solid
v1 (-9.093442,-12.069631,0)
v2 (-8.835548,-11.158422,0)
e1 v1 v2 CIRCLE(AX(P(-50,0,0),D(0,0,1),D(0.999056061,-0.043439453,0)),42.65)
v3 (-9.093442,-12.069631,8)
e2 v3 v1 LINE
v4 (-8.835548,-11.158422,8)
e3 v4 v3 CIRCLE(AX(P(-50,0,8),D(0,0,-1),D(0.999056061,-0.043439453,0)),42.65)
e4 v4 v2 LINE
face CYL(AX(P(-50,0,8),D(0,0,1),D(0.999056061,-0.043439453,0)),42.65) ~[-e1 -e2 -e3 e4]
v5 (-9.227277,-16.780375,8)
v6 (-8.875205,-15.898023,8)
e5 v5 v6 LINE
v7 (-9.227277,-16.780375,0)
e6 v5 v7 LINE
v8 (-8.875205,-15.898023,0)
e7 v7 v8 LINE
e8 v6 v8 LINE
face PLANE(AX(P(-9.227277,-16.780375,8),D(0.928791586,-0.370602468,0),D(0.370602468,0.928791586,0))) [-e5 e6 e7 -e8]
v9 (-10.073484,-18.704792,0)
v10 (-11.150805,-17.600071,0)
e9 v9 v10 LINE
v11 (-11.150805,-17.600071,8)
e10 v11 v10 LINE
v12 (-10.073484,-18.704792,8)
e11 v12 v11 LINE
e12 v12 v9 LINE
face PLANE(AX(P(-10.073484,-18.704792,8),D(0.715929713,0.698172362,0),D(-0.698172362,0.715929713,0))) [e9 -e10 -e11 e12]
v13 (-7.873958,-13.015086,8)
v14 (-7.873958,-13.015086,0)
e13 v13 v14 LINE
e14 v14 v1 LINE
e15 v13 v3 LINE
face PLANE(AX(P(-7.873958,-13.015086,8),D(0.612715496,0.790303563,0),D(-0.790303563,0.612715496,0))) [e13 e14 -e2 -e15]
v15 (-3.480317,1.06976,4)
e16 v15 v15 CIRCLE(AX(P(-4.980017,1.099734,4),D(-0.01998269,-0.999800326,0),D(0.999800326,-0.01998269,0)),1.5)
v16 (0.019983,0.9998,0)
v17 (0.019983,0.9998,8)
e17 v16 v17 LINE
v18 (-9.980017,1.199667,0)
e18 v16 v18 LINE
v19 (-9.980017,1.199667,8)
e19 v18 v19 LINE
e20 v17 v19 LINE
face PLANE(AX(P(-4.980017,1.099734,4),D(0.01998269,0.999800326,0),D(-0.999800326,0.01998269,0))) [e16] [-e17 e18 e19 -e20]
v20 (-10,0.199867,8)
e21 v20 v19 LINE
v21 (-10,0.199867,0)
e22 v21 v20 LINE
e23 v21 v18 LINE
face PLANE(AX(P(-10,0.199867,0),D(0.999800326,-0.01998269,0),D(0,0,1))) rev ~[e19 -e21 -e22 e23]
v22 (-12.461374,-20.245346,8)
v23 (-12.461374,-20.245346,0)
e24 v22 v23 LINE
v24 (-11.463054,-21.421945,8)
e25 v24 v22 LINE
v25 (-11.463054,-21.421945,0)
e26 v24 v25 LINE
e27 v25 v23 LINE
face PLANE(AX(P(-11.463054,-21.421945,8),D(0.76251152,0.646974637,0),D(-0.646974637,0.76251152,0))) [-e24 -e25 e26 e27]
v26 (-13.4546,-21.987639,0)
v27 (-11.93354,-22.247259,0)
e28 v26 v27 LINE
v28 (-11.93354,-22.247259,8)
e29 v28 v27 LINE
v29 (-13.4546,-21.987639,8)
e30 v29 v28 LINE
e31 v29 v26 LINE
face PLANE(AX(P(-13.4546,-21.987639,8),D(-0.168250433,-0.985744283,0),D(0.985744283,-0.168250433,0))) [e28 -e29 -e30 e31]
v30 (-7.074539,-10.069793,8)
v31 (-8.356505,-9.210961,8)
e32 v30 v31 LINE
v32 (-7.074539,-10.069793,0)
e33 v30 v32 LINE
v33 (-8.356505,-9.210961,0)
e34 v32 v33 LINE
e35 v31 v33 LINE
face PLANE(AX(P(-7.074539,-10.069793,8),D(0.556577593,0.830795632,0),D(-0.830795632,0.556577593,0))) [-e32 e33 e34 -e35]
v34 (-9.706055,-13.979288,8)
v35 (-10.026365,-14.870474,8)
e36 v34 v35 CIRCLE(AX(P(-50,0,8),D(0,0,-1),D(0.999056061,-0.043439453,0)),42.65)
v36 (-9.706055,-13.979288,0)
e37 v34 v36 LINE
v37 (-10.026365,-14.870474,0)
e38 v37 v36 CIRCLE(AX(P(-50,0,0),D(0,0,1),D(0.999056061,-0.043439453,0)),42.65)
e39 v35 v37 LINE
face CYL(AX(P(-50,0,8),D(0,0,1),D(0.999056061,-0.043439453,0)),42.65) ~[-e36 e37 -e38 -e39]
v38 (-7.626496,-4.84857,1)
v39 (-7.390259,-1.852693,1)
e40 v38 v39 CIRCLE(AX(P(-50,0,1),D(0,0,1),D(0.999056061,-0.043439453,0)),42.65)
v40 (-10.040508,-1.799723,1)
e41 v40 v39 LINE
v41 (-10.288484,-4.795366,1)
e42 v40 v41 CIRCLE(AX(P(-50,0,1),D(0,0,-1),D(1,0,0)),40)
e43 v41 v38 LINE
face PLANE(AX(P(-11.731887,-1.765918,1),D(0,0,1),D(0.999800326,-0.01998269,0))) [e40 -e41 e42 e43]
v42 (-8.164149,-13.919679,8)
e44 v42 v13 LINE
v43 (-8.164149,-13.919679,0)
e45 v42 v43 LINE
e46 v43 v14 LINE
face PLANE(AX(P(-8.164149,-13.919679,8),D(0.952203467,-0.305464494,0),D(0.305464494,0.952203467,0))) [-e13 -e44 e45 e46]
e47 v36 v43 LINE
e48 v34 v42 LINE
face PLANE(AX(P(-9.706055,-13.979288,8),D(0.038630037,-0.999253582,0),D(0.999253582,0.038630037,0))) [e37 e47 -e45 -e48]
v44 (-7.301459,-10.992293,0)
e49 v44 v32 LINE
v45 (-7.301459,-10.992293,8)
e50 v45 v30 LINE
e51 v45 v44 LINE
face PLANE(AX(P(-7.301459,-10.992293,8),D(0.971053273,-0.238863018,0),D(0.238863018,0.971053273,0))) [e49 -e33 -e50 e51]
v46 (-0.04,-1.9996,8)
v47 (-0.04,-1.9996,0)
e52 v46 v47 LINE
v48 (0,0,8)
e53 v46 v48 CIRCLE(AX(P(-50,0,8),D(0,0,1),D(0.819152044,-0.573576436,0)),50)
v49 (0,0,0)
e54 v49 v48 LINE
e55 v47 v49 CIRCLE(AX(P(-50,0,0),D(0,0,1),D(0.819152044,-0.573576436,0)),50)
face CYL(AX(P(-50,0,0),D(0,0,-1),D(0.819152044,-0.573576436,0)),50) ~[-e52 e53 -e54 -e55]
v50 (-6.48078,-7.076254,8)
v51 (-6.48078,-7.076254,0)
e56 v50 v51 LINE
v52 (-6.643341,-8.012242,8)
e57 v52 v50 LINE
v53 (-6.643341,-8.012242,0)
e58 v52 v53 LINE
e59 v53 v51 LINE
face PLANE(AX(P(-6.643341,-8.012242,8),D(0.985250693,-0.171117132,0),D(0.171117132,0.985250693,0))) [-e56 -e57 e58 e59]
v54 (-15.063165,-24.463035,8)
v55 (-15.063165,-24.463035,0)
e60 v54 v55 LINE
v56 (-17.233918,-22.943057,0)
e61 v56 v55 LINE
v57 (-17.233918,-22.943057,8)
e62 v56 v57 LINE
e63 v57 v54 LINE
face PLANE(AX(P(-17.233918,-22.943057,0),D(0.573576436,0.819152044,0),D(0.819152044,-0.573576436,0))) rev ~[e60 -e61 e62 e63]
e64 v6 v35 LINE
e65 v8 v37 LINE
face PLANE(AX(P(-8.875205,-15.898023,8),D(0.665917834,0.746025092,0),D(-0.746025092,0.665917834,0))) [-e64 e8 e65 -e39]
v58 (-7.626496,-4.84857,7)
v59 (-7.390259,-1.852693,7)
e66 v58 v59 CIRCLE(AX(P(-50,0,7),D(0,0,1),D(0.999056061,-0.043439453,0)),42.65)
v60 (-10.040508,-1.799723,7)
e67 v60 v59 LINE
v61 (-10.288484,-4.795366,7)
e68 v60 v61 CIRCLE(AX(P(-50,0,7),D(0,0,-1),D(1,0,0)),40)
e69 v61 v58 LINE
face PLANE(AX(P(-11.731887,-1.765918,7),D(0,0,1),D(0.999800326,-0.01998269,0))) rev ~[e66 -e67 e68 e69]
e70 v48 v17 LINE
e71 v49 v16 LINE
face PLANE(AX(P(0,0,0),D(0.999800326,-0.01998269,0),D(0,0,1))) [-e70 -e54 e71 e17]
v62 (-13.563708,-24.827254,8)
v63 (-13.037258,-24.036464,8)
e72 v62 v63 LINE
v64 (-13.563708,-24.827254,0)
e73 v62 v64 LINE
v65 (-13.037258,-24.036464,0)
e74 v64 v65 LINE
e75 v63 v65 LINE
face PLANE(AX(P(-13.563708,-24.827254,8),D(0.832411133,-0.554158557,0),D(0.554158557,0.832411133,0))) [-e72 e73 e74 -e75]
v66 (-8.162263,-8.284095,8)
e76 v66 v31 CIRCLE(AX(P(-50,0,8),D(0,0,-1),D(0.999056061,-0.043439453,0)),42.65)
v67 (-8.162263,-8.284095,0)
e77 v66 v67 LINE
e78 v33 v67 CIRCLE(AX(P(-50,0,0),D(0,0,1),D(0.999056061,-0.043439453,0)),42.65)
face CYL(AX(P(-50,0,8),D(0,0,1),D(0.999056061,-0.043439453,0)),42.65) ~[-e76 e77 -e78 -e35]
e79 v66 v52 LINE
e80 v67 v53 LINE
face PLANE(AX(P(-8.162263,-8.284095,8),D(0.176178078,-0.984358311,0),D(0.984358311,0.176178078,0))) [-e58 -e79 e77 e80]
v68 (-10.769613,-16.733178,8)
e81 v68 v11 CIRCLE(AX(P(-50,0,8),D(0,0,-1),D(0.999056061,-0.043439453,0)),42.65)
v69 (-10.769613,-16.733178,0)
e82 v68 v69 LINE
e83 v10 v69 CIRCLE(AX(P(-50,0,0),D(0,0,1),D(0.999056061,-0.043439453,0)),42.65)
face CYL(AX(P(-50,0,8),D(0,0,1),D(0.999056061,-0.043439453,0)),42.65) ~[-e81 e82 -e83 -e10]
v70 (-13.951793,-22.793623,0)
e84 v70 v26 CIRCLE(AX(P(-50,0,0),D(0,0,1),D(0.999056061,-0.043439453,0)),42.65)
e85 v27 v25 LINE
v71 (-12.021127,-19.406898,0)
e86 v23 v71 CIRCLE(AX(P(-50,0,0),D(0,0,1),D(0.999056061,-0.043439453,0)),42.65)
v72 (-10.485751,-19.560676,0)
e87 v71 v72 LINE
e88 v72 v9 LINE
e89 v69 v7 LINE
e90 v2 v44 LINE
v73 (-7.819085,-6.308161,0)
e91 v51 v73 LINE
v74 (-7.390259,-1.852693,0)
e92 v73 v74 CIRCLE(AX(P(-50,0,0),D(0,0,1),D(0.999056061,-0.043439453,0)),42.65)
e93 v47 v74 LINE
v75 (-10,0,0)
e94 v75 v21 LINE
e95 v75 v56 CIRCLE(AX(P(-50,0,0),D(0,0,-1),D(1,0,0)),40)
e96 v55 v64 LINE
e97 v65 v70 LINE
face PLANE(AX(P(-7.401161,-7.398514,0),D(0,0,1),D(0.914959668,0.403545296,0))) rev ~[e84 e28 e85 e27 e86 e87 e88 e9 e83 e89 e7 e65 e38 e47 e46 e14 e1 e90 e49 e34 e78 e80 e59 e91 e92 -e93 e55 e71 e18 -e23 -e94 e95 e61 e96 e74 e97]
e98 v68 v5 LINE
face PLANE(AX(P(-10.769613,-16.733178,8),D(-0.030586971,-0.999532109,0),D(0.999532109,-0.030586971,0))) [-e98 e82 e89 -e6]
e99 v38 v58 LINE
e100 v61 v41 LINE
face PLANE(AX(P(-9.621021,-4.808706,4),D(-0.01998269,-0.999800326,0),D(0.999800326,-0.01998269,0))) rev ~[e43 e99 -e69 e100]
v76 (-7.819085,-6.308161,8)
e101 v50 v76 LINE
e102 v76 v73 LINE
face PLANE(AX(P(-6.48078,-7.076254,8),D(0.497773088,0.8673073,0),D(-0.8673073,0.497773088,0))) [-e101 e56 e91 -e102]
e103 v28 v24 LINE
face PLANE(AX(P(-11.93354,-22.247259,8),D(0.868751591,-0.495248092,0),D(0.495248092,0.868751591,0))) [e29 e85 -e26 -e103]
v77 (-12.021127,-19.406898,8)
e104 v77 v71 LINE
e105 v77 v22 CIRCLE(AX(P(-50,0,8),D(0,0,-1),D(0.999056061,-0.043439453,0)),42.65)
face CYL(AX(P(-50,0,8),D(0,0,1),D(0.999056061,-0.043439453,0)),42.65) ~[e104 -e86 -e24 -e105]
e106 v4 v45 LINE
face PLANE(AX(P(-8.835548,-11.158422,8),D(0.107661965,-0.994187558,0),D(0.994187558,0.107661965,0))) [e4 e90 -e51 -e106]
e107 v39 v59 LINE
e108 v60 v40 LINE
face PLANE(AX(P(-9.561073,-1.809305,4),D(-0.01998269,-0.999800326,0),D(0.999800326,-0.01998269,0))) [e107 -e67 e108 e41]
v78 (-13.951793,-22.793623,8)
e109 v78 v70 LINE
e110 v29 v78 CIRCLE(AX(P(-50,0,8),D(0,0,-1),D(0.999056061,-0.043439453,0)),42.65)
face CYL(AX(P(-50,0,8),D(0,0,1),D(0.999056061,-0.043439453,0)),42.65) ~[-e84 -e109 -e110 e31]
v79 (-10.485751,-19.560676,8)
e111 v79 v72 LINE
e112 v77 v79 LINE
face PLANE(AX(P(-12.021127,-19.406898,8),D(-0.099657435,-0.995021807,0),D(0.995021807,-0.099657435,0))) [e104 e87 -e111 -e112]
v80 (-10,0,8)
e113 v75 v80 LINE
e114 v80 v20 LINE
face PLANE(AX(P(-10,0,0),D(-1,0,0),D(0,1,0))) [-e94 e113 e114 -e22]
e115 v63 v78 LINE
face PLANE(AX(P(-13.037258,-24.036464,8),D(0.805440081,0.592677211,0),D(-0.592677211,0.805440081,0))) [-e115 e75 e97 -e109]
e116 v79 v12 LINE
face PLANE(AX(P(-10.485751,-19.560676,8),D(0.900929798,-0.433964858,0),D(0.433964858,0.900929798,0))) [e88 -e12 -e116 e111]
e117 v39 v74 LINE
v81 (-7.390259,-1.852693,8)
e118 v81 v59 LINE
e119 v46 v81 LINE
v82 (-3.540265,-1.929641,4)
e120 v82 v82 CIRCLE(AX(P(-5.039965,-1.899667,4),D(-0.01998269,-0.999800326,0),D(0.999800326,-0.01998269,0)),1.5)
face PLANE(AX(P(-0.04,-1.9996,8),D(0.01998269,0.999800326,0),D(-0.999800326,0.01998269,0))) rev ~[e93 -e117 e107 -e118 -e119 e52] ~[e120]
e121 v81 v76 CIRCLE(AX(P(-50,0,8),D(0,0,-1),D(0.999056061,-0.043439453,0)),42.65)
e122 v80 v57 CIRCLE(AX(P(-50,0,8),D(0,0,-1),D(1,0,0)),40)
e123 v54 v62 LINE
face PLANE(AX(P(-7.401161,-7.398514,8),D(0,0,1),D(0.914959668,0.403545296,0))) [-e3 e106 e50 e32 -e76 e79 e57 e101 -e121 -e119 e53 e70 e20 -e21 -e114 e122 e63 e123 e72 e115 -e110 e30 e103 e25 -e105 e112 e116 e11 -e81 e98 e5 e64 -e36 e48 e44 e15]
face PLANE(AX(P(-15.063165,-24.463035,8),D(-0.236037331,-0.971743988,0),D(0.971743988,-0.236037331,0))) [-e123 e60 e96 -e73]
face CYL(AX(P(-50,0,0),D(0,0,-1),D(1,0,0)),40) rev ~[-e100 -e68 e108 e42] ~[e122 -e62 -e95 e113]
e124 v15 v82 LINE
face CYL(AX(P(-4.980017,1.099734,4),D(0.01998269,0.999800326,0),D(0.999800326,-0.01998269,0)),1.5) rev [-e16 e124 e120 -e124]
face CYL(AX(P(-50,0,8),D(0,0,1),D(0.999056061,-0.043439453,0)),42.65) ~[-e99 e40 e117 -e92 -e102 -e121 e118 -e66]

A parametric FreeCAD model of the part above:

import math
import FreeCAD as App
import Part
import Sketcher
Q = App.Units.Quantity


def add_polygon(sketch, points):
    """Adds a closed chain of lines whose ends are joined by coincident constraints."""
    first, n = sketch.GeometryCount, len(points)
    for a, b in zip(points, points[1:] + points[:1]):
        sketch.addGeometry(Part.LineSegment(App.Vector(*a, 0), App.Vector(*b, 0)), False)
    for i in range(n):
        sketch.addConstraint(Sketcher.Constraint("Coincident", first + i, 2, first + (i + 1) % n, 1))

doc = App.newDocument("Part")
body = doc.addObject("PartDesign::Body", "Body")

# Sketch on XY plane
sketch1 = doc.addObject("Sketcher::SketchObject", "Sketch")
body.addObject(sketch1)
sketch1.AttachmentSupport = (doc.XY_Plane, [""])
sketch1.MapMode = "FlatFace"
sketch1.addGeometry([
    Part.LineSegment(App.Vector(0, 0, 0), App.Vector(-10, 0, 0)),
    Part.ArcOfCircle(Part.Circle(App.Vector(-50, 0, 0), App.Vector(0, 0, 1), 40), math.radians(-35), math.radians(0)),
    Part.LineSegment(App.Vector(-17, -23, 0), App.Vector(-9, -29, 0)),
    Part.ArcOfCircle(Part.Circle(App.Vector(-50, 0, 0), App.Vector(0, 0, 1), 50), math.radians(-35), math.radians(0)),
], False)
sketch1.addConstraint([
    Sketcher.Constraint("Coincident", 0, 2, 1, 2),
    Sketcher.Constraint("Coincident", 1, 1, 2, 1),
    Sketcher.Constraint("Coincident", 2, 2, 3, 1),
    Sketcher.Constraint("Coincident", 3, 2, 0, 1),
    Sketcher.Constraint("Horizontal", 0),
    Sketcher.Constraint("Coincident", 3, 2, -1, 1),
    Sketcher.Constraint("Coincident", 3, 3, 1, 3),
    Sketcher.Constraint("PointOnObject", 1, 3, -1),
    Sketcher.Constraint("Radius", 1, 40.0),
    Sketcher.Constraint("Radius", 3, 50.0),
    Sketcher.Constraint("Angle", 2, Q("-35 deg")),
    Sketcher.Constraint("DistanceX", 1, 1, -1, 1, 17.233918),
])
pad1 = doc.addObject("PartDesign::Pad", "Pad")
body.addObject(pad1)
pad1.Profile = sketch1
pad1.Length = 8

# Sketch on XY plane
sketch2 = doc.addObject("Sketcher::SketchObject", "Sketch001")
body.addObject(sketch2)
sketch2.AttachmentSupport = (doc.XY_Plane, [""])
sketch2.MapMode = "FlatFace"
add_polygon(sketch2, [(-10, 0.2), (-10, 0), (0, 0)])  # lines 0-2
sketch2.addConstraint([
    Sketcher.Constraint("Vertical", 0),
    Sketcher.Constraint("Horizontal", 1),
    Sketcher.Constraint("Coincident", 1, 2, -1, 1),
    Sketcher.Constraint("DistanceX", 1, 1, 1, 2, 10.0),
    Sketcher.Constraint("DistanceY", 0, 2, 0, 1, 0.199867),
])
pad2 = doc.addObject("PartDesign::Pad", "Pad001")
body.addObject(pad2)
pad2.Profile = sketch2
pad2.Length = 8

# Sketch on an angled plane
sketch3 = doc.addObject("Sketcher::SketchObject", "Sketch002")
body.addObject(sketch3)
sketch3.Placement = App.Placement(App.Vector(0, 0, 0), App.Rotation(App.Vector(-0.999800326, 0.01998269, 0), App.Vector(0, 0, 1), App.Vector(0.01998269, 0.999800326, 0), "ZXY"))
add_polygon(sketch3, [(0, 8), (0, 0), (10, 0), (10, 8)])  # lines 0-3
sketch3.addConstraint([
    Sketcher.Constraint("Vertical", 0),
    Sketcher.Constraint("Horizontal", 1),
    Sketcher.Constraint("Vertical", 2),
    Sketcher.Constraint("Horizontal", 3),
    Sketcher.Constraint("Coincident", 0, 2, -1, 1),
    Sketcher.Constraint("DistanceY", 0, 2, 0, 1, 8.0),
    Sketcher.Constraint("DistanceX", 1, 1, 1, 2, 10.001997),
])
pad3 = doc.addObject("PartDesign::Pad", "Pad002")
body.addObject(pad3)
pad3.Profile = sketch3
pad3.Length = 1

# Sketch on an angled plane
sketch4 = doc.addObject("Sketcher::SketchObject", "Sketch003")
body.addObject(sketch4)
sketch4.Placement = App.Placement(App.Vector(0.019983, 0.9998, 0), App.Rotation(App.Vector(0.999800326, -0.01998269, 0), App.Vector(0, 0, 1), App.Vector(-0.01998269, -0.999800326, 0), "ZXY"))
sketch4.addGeometry(Part.Circle(App.Vector(-5, 4, 0), App.Vector(0, 0, 1), 1.5), False)
sketch4.addConstraint([
    Sketcher.Constraint("Diameter", 0, 3.0),
    Sketcher.Constraint("DistanceY", -1, 1, 0, 3, 4.0),
    Sketcher.Constraint("DistanceX", 0, 3, -1, 1, 5.000999),
])
pocket1 = doc.addObject("PartDesign::Pocket", "Pocket")
body.addObject(pocket1)
pocket1.Profile = sketch4
pocket1.Length = 3
pocket1.Reversed = True

# Sketch on XY plane
sketch5 = doc.addObject("Sketcher::SketchObject", "Sketch004")
body.addObject(sketch5)
sketch5.AttachmentSupport = (doc.XY_Plane, [""])
sketch5.MapMode = "FlatFace"
sketch5.AttachmentOffset = App.Placement(App.Vector(0, 0, 8), App.Rotation())
sketch5.addGeometry([
    Part.LineSegment(App.Vector(0, -2, 0), App.Vector(-7.4, -1.9, 0)),  # 0
    Part.ArcOfCircle(Part.Circle(App.Vector(-50, 0, 0), App.Vector(0, 0, 1), 42.6), math.radians(-35), math.radians(-2)),  # 1
    Part.LineSegment(App.Vector(-15.1, -24.5, 0), App.Vector(-9, -28.7, 0)),  # 2
    Part.LineSegment(App.Vector(-9, -28.7, 0), App.Vector(-2.9, -26.1, 0)),  # 3
    Part.LineSegment(App.Vector(-2.9, -26.1, 0), App.Vector(1.6, -2.9, 0)),  # 4
    Part.LineSegment(App.Vector(1.6, -2.9, 0), App.Vector(0, -2, 0)),  # 5
], False)
sketch5.addConstraint([
    Sketcher.Constraint("Coincident", 0, 2, 1, 2),
    Sketcher.Constraint("Coincident", 1, 1, 2, 1),
    Sketcher.Constraint("Coincident", 2, 2, 3, 1),
    Sketcher.Constraint("Coincident", 3, 2, 4, 1),
    Sketcher.Constraint("Coincident", 4, 2, 5, 1),
    Sketcher.Constraint("Coincident", 5, 2, 0, 1),
    Sketcher.Constraint("PointOnObject", 1, 3, -1),
    Sketcher.Constraint("Angle", 2, Q("-35 deg")),
    Sketcher.Constraint("Radius", 1, 42.65),
    Sketcher.Constraint("DistanceX", 1, 3, -1, 1, 50.0),
    Sketcher.Constraint("Distance", 2, 7.35),
    Sketcher.Constraint("DistanceX", 5, 2, -1, 1, 0.04),
    Sketcher.Constraint("DistanceY", 5, 2, -1, 1, 1.9996),
    Sketcher.Constraint("Distance", 4, 23.704748),
    Sketcher.Constraint("Distance", 5, 1.845279),
    Sketcher.Constraint("DistanceX", 0, 2, -1, 1, 7.390259),
    Sketcher.Constraint("DistanceY", 2, 2, -1, 1, 28.678822),
    Sketcher.Constraint("DistanceX", 3, 2, -1, 1, 2.903131),
    Sketcher.Constraint("DistanceY", 3, 2, -1, 1, 26.123749),
])
pocket2 = doc.addObject("PartDesign::Pocket", "Pocket001")
body.addObject(pocket2)
pocket2.Profile = sketch5
pocket2.Type = "ThroughAll"

# Sketch on an angled plane
sketch6 = doc.addObject("Sketcher::SketchObject", "Sketch005")
body.addObject(sketch6)
sketch6.Placement = App.Placement(App.Vector(-0.039965, -1.999601, 0), App.Rotation(App.Vector(0.999800326, -0.01998269, 0), App.Vector(0, 0, 1), App.Vector(-0.01998269, -0.999800326, 0), "ZXY"))
add_polygon(sketch6, [(-11.7, 7), (-11.7, 1), (-7.4, 1), (-7.4, 7)])  # lines 0-3
sketch6.addConstraint([
    Sketcher.Constraint("Vertical", 0),
    Sketcher.Constraint("Horizontal", 1),
    Sketcher.Constraint("Vertical", 2),
    Sketcher.Constraint("Horizontal", 3),
    Sketcher.Constraint("DistanceY", 0, 2, 0, 1, 6.0),
    Sketcher.Constraint("DistanceY", -1, 1, 0, 2, 1.0),
    Sketcher.Constraint("DistanceX", 1, 1, 1, 2, 4.342495),
    Sketcher.Constraint("DistanceX", 1, 2, -1, 1, 7.351762),
])
pocket3 = doc.addObject("PartDesign::Pocket", "Pocket002")
body.addObject(pocket3)
pocket3.Profile = sketch6
pocket3.Length = 3
pocket3.Reversed = True

# Sketch on XY plane
sketch7 = doc.addObject("Sketcher::SketchObject", "Sketch006")
body.addObject(sketch7)
sketch7.AttachmentSupport = (doc.XY_Plane, [""])
sketch7.MapMode = "FlatFace"
sketch7.AttachmentOffset = App.Placement(App.Vector(0, 0, 8), App.Rotation())
add_polygon(sketch7, [(-15.1, -24.5), (-13.6, -24.8), (-13, -24), (-14, -22.8)])  # lines 0-3
sketch7.addConstraint([
    Sketcher.Constraint("Parallel", 1, 3),
    Sketcher.Constraint("Equal", 0, 2),
    Sketcher.Constraint("Distance", 1, 0.95),
    Sketcher.Constraint("DistanceX", 0, 2, -1, 1, 13.563708),
    Sketcher.Constraint("DistanceX", 0, 2, 1, 2, 0.526451),
    Sketcher.Constraint("DistanceY", 1, 2, 2, 2, 1.242841),
    Sketcher.Constraint("DistanceY", 0, 2, 3, 2, 0.364219),
    Sketcher.Constraint("DistanceY", 0, 2, -1, 1, 24.827254),
])
pad4 = doc.addObject("PartDesign::Pad", "Pad003")
body.addObject(pad4)
pad4.Profile = sketch7
pad4.Length = 8
pad4.Reversed = True
doc.recompute()

datumline = doc.addObject("PartDesign::Line", "DatumLine")
body.addObject(datumline)
datumline.Placement = App.Placement(App.Vector(-50, 0, 0), App.Rotation(App.Vector(0, 0, 1), App.Vector(0, 0, 1)))
polarpattern = doc.addObject("PartDesign::PolarPattern", "PolarPattern")
body.addObject(polarpattern)
polarpattern.Originals = [pad4]
polarpattern.Axis = (datumline, [""])
polarpattern.Angle = 23.8
polarpattern.Occurrences = 7
body.Tip = polarpattern

doc.recompute()
